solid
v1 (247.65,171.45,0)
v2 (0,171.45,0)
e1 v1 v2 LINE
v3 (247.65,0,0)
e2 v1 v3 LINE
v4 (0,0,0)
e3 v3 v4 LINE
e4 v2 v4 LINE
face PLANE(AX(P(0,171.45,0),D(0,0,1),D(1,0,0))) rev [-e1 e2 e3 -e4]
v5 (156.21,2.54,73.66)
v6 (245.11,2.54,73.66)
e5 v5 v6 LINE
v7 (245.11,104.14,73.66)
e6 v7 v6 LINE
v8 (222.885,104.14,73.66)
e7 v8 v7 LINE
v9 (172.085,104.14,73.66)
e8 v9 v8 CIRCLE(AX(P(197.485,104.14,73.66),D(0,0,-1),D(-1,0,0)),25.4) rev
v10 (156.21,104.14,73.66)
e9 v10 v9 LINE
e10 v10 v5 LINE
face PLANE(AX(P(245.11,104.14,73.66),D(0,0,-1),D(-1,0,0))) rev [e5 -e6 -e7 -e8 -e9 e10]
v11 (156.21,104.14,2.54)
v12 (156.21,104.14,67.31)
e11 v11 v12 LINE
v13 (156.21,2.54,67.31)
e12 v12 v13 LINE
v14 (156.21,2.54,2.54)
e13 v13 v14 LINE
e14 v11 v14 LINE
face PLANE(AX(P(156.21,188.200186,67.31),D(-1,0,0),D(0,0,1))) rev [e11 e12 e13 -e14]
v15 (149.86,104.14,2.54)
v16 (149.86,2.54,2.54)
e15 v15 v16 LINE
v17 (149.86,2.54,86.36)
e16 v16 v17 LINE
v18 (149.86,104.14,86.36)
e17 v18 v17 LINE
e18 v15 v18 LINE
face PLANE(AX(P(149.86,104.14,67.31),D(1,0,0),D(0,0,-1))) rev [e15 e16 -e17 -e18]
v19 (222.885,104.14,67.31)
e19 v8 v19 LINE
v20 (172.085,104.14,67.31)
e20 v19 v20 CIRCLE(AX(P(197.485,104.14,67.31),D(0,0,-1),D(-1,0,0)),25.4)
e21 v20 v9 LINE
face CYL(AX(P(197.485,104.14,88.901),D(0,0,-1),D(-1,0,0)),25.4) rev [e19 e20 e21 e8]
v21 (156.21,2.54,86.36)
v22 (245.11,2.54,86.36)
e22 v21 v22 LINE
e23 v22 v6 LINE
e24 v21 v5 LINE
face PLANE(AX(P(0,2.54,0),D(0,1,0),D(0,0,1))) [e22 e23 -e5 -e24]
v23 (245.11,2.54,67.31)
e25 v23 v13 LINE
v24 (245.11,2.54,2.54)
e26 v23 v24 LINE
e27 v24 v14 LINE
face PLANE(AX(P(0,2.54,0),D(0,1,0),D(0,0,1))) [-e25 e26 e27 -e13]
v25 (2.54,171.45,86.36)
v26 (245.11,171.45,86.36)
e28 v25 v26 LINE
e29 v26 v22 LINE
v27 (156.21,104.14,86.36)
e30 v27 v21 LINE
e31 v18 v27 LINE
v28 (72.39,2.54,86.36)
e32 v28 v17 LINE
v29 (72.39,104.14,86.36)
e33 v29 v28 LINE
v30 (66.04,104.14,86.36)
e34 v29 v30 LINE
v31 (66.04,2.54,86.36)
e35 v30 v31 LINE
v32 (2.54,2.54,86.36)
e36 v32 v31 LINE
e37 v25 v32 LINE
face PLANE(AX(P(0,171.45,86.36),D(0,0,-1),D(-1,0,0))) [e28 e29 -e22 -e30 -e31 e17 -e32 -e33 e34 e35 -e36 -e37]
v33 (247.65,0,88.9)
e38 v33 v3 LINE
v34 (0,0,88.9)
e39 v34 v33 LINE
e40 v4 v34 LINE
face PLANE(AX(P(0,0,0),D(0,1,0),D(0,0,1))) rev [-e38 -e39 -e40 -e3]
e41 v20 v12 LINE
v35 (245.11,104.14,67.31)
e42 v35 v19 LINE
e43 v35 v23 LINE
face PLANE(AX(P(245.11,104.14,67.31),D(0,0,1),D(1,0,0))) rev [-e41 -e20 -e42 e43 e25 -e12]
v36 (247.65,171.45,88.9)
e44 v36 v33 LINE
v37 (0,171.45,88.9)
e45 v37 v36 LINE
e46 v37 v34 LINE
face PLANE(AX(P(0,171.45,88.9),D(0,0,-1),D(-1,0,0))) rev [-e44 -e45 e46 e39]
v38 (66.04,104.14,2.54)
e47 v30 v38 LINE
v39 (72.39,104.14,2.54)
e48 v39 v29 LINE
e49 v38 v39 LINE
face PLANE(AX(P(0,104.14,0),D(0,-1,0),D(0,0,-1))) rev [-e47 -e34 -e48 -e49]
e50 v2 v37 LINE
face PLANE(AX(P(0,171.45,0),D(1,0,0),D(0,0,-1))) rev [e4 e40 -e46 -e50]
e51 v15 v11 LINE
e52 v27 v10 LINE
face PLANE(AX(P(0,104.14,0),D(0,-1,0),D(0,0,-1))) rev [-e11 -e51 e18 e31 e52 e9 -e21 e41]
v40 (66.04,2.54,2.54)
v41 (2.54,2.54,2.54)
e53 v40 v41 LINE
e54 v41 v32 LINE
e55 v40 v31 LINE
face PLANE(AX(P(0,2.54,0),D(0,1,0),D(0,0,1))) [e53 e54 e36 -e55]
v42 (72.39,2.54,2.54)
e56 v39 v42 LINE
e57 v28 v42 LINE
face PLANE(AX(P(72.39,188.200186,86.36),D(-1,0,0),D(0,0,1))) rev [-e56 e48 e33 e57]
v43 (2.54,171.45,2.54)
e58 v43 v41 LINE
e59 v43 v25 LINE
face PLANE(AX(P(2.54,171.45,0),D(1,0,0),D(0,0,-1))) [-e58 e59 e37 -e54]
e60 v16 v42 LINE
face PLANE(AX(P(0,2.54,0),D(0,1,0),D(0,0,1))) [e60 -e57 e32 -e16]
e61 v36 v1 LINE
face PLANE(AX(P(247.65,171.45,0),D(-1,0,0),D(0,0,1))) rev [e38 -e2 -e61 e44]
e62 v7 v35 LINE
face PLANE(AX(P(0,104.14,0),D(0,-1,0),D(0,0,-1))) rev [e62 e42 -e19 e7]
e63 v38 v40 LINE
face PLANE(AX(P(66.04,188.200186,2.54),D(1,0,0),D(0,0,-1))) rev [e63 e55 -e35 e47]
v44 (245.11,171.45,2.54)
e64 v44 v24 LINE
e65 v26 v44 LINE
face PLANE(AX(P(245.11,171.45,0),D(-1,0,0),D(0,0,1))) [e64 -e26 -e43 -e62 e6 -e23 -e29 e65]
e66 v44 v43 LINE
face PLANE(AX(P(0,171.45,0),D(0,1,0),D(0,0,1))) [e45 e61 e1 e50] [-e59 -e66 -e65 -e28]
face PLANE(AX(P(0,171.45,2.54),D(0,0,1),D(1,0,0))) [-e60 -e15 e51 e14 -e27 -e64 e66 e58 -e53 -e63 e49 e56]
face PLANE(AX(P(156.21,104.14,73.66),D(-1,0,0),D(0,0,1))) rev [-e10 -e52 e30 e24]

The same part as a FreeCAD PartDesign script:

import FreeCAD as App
import Part
import Sketcher

V = App.Vector
Q = App.Units.Quantity


def faces_at(feature, points):
    """Names of the faces that lie closest to the given points."""
    faces = feature.Shape.Faces
    near = lambda p: min(range(len(faces)), key=lambda i: faces[i].distToShape(Part.Vertex(*p))[0])
    return sorted({f"Face{near(p) + 1}" for p in points})

doc = App.newDocument("Part")
body = doc.addObject("PartDesign::Body", "Body")

# Sketch on XZ plane
sketch1 = body.newObject("Sketcher::SketchObject", "Sketch")
sketch1.AttachmentSupport = (doc.getObject("XZ_Plane"), [""])
sketch1.MapMode = "FlatFace"
sketch1.addGeometry([
    Part.LineSegment(V(0, 0, 0), V(0, 89, 0)),
    Part.LineSegment(V(0, 89, 0), V(248, 89, 0)),
    Part.LineSegment(V(248, 89, 0), V(248, 0, 0)),
    Part.LineSegment(V(248, 0, 0), V(0, 0, 0)),
], False)
sketch1.addConstraint([
    Sketcher.Constraint("Coincident", 0, 2, 1, 1),
    Sketcher.Constraint("Coincident", 1, 2, 2, 1),
    Sketcher.Constraint("Coincident", 2, 2, 3, 1),
    Sketcher.Constraint("Coincident", 3, 2, 0, 1),
    Sketcher.Constraint("Vertical", 0),
    Sketcher.Constraint("Horizontal", 1),
    Sketcher.Constraint("Vertical", 2),
    Sketcher.Constraint("Horizontal", 3),
    Sketcher.Constraint("Coincident", 3, 2, -1, 1),
    Sketcher.Constraint("DistanceY", 0, 1, 0, 2, Q("3.5 in")),
    Sketcher.Constraint("DistanceX", 1, 1, 1, 2, Q("9.75 in")),
])
pad1 = body.newObject("PartDesign::Pad", "Pad")
pad1.Profile = sketch1
pad1.Length = Q("6.75 in")
pad1.Reversed = True
doc.recompute()

thickness = body.newObject("PartDesign::Thickness", "Thickness")
thickness.Base = (pad1, faces_at(pad1, [(123.825, 171.45, 44.45)]))
thickness.Value = Q("0.1 in")
thickness.Reversed = True
thickness.Join = "Intersection"

# Sketch on XZ plane
sketch2 = body.newObject("Sketcher::SketchObject", "Sketch001")
sketch2.AttachmentSupport = (doc.getObject("XZ_Plane"), [""])
sketch2.MapMode = "FlatFace"
sketch2.AttachmentOffset = App.Placement(V(0, 0, -0.1 * 25.4), App.Rotation())
sketch2.addGeometry([
    Part.LineSegment(V(156, 74, 0), V(245, 74, 0)),  # 0
    Part.LineSegment(V(245, 74, 0), V(245, 67, 0)),  # 1
    Part.LineSegment(V(245, 67, 0), V(150, 67, 0)),  # 2
    Part.LineSegment(V(150, 67, 0), V(150, 86, 0)),  # 3
    Part.LineSegment(V(150, 86, 0), V(156, 86, 0)),  # 4
    Part.LineSegment(V(156, 86, 0), V(156, 74, 0)),  # 5
], False)
sketch2.addConstraint([
    Sketcher.Constraint("Coincident", 0, 2, 1, 1),
    Sketcher.Constraint("Coincident", 1, 2, 2, 1),
    Sketcher.Constraint("Coincident", 2, 2, 3, 1),
    Sketcher.Constraint("Coincident", 3, 2, 4, 1),
    Sketcher.Constraint("Coincident", 4, 2, 5, 1),
    Sketcher.Constraint("Coincident", 5, 2, 0, 1),
    Sketcher.Constraint("Horizontal", 0),
    Sketcher.Constraint("Vertical", 1),
    Sketcher.Constraint("Horizontal", 2),
    Sketcher.Constraint("Vertical", 3),
    Sketcher.Constraint("Horizontal", 4),
    Sketcher.Constraint("Vertical", 5),
    Sketcher.Constraint("Equal", 4, 1),
    Sketcher.Constraint("DistanceX", 0, 1, 0, 2, Q("3.5 in")),
    Sketcher.Constraint("DistanceY", 5, 2, 5, 1, Q("0.5 in")),
    Sketcher.Constraint("DistanceX", 2, 2, 2, 1, Q("3.75 in")),
    Sketcher.Constraint("DistanceY", -1, 1, 0, 2, Q("2.9 in")),
    Sketcher.Constraint("DistanceX", -1, 1, 2, 2, Q("5.9 in")),
])
pad2 = body.newObject("PartDesign::Pad", "Pad001")
pad2.Profile = sketch2
pad2.Length = Q("4 in")
pad2.Reversed = True

# Sketch on XY plane
sketch3 = body.newObject("Sketcher::SketchObject", "Sketch002")
sketch3.AttachmentSupport = (doc.getObject("XY_Plane"), [""])
sketch3.MapMode = "FlatFace"
sketch3.AttachmentOffset = App.Placement(V(0, 0, 2.65 * 25.4), App.Rotation())
sketch3.addGeometry(Part.Circle(V(197, 104, 0), V(0, 0, 1), 25), False)
sketch3.addConstraint([
    Sketcher.Constraint("Diameter", 0, Q("2 in")),
    Sketcher.Constraint("DistanceY", -1, 1, 0, 3, Q("4.1 in")),
    Sketcher.Constraint("DistanceX", -1, 1, 0, 3, Q("7.775 in")),
])
pocket1 = body.newObject("PartDesign::Pocket", "Pocket")
pocket1.Profile = sketch3
pocket1.Type = "UpToFirst"
pocket1.Reversed = True

# Sketch on XZ plane
sketch4 = body.newObject("Sketcher::SketchObject", "Sketch003")
sketch4.AttachmentSupport = (doc.getObject("XZ_Plane"), [""])
sketch4.MapMode = "FlatFace"
sketch4.AttachmentOffset = App.Placement(V(0, 0, -0.1 * 25.4), App.Rotation())
sketch4.addGeometry([
    Part.LineSegment(V(150, 3, 0), V(150, 67, 0)),  # 0
    Part.LineSegment(V(150, 67, 0), V(156, 67, 0)),  # 1
    Part.LineSegment(V(156, 67, 0), V(156, 3, 0)),  # 2
    Part.LineSegment(V(156, 3, 0), V(150, 3, 0)),  # 3
    Part.LineSegment(V(66, 3, 0), V(66, 86, 0)),  # 4
    Part.LineSegment(V(66, 86, 0), V(72, 86, 0)),  # 5
    Part.LineSegment(V(72, 86, 0), V(72, 3, 0)),  # 6
    Part.LineSegment(V(72, 3, 0), V(66, 3, 0)),  # 7
], False)
sketch4.addConstraint([
    Sketcher.Constraint("Coincident", 0, 2, 1, 1),
    Sketcher.Constraint("Coincident", 1, 2, 2, 1),
    Sketcher.Constraint("Coincident", 2, 2, 3, 1),
    Sketcher.Constraint("Coincident", 3, 2, 0, 1),
    Sketcher.Constraint("Coincident", 4, 2, 5, 1),
    Sketcher.Constraint("Coincident", 5, 2, 6, 1),
    Sketcher.Constraint("Coincident", 6, 2, 7, 1),
    Sketcher.Constraint("Coincident", 7, 2, 4, 1),
    Sketcher.Constraint("Vertical", 0),
    Sketcher.Constraint("Horizontal", 1),
    Sketcher.Constraint("Vertical", 2),
    Sketcher.Constraint("Horizontal", 3),
    Sketcher.Constraint("Vertical", 4),
    Sketcher.Constraint("Horizontal", 5),
    Sketcher.Constraint("Vertical", 6),
    Sketcher.Constraint("Horizontal", 7),
    Sketcher.Constraint("Horizontal", 3, 2, 6, 2),
    Sketcher.Constraint("Equal", 3, 5),
    Sketcher.Constraint("DistanceY", 4, 1, 4, 2, Q("3.3 in")),
    Sketcher.Constraint("DistanceX", 1, 1, 1, 2, Q("0.25 in")),
    Sketcher.Constraint("DistanceY", 0, 1, 0, 2, Q("2.55 in")),
    Sketcher.Constraint("DistanceX", -1, 1, 0, 2, Q("5.9 in")),
    Sketcher.Constraint("DistanceY", -1, 1, 2, 2, Q("0.1 in")),
    Sketcher.Constraint("DistanceX", -1, 1, 4, 2, Q("2.6 in")),
])
pad3 = body.newObject("PartDesign::Pad", "Pad002")
pad3.Profile = sketch4
pad3.Length = Q("4 in")
pad3.Reversed = True

doc.recompute()
